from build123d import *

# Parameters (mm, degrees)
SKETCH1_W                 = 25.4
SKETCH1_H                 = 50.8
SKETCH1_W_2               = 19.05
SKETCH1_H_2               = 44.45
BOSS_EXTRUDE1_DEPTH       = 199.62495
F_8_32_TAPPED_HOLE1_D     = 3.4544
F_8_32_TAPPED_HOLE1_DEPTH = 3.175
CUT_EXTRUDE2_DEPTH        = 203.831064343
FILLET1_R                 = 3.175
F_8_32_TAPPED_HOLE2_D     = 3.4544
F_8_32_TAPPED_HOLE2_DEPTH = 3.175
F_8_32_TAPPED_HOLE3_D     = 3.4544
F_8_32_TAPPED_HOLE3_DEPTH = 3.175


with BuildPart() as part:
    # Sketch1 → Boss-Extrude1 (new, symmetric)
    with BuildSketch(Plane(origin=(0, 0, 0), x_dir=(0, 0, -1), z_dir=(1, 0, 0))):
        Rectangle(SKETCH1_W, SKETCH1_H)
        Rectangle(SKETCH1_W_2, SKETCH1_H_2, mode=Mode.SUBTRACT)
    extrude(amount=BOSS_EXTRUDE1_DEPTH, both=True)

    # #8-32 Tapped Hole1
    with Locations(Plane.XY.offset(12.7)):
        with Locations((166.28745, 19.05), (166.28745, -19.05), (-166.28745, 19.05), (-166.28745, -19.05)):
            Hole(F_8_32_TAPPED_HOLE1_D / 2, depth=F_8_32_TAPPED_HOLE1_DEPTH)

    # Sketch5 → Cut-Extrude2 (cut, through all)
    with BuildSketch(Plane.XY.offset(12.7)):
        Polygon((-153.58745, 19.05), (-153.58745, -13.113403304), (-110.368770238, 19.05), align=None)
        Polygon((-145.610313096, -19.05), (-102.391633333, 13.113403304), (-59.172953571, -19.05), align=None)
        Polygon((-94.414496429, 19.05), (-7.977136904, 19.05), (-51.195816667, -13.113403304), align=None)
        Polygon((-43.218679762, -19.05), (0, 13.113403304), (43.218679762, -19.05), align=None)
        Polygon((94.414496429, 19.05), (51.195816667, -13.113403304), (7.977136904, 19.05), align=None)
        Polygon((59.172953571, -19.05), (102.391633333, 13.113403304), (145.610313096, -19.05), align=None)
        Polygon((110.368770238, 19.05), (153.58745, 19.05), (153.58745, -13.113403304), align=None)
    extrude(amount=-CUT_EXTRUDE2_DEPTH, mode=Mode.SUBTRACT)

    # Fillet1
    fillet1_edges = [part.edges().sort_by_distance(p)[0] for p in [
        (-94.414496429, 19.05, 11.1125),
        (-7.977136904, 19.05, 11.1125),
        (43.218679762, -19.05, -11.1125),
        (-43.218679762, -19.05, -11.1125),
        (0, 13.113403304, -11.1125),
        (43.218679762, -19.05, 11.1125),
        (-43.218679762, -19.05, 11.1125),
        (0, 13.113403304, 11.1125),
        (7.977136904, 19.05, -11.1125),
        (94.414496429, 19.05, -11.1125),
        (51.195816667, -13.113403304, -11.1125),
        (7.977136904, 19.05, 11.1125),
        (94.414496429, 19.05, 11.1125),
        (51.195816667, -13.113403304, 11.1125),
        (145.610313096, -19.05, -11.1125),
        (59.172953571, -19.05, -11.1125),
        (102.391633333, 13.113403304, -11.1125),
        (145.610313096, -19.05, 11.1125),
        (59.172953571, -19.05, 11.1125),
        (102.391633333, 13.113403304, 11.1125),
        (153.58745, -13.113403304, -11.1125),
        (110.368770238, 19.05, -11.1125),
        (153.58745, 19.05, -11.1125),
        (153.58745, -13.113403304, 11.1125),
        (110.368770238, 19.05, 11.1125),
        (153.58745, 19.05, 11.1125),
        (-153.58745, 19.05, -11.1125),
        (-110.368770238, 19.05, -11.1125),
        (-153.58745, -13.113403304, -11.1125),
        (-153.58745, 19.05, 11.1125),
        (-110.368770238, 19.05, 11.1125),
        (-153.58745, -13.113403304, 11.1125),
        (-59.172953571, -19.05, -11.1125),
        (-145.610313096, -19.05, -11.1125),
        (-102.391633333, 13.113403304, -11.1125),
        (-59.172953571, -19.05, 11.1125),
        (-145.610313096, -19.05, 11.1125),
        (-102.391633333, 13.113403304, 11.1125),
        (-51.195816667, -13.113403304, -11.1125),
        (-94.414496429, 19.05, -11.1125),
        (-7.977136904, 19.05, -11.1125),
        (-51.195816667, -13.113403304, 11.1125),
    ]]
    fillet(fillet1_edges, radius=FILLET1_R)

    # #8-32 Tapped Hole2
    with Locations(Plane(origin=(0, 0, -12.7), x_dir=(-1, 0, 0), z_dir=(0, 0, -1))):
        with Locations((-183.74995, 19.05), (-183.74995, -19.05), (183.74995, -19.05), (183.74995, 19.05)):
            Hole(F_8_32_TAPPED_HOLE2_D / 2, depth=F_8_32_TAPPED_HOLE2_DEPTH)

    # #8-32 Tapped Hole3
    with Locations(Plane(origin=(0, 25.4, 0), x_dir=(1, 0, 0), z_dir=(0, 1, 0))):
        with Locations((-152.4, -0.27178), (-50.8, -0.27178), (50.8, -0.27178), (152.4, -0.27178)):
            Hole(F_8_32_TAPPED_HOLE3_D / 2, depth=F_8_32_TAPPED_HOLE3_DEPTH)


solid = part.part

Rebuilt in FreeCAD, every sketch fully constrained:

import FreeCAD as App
import Part
import Sketcher
Q = App.Units.Quantity


def edges_at(feature, points):
    """Names of the edges that pass closest to the given points."""
    edges = feature.Shape.Edges
    near = lambda p: min(range(len(edges)), key=lambda i: edges[i].distToShape(Part.Vertex(*p))[0])
    return sorted({f"Edge{near(p) + 1}" for p in points})

doc = App.newDocument("Part")
body = doc.addObject("PartDesign::Body", "Body")

sketch1 = body.newObject("Sketcher::SketchObject", "Sketch")
sketch1.AttachmentSupport = (doc.getObject("YZ_Plane"), [""])
sketch1.MapMode = "FlatFace"
sketch1.addGeometry([
    Part.LineSegment(App.Vector(25, 13, 0), App.Vector(-25, 13, 0)),
    Part.LineSegment(App.Vector(-25, 13, 0), App.Vector(-25, -13, 0)),
    Part.LineSegment(App.Vector(-25, -13, 0), App.Vector(25, -13, 0)),
    Part.LineSegment(App.Vector(25, -13, 0), App.Vector(25, 13, 0)),
    Part.LineSegment(App.Vector(-22, -10, 0), App.Vector(-22, 10, 0)),
    Part.LineSegment(App.Vector(-22, 10, 0), App.Vector(22, 10, 0)),
    Part.LineSegment(App.Vector(22, 10, 0), App.Vector(22, -10, 0)),
    Part.LineSegment(App.Vector(22, -10, 0), App.Vector(-22, -10, 0)),
], False)
sketch1.addConstraint([
    Sketcher.Constraint("Coincident", 0, 2, 1, 1),
    Sketcher.Constraint("Coincident", 1, 2, 2, 1),
    Sketcher.Constraint("Coincident", 2, 2, 3, 1),
    Sketcher.Constraint("Coincident", 3, 2, 0, 1),
    Sketcher.Constraint("Coincident", 4, 2, 5, 1),
    Sketcher.Constraint("Coincident", 5, 2, 6, 1),
    Sketcher.Constraint("Coincident", 6, 2, 7, 1),
    Sketcher.Constraint("Coincident", 7, 2, 4, 1),
    Sketcher.Constraint("Horizontal", 0),
    Sketcher.Constraint("Vertical", 1),
    Sketcher.Constraint("Horizontal", 2),
    Sketcher.Constraint("Vertical", 3),
    Sketcher.Constraint("Vertical", 4),
    Sketcher.Constraint("Horizontal", 5),
    Sketcher.Constraint("Vertical", 6),
    Sketcher.Constraint("Horizontal", 7),
    Sketcher.Constraint("Symmetric", 0, 2, 2, 2, -1, 1),
    Sketcher.Constraint("Symmetric", 4, 2, 6, 2, -1, 1),
    Sketcher.Constraint("DistanceX", 0, 2, 0, 1, Q("2 in")),
    Sketcher.Constraint("DistanceY", 1, 2, 1, 1, Q("1 in")),
    Sketcher.Constraint("DistanceX", 5, 1, 5, 2, Q("1.75 in")),
    Sketcher.Constraint("DistanceY", 4, 1, 4, 2, Q("0.75 in")),
])
pad1 = body.newObject("PartDesign::Pad", "Pad")
pad1.Profile = sketch1
pad1.Length = Q("15.7185 in")
pad1.Midplane = True

sketch2 = body.newObject("Sketcher::SketchObject", "Sketch001")
sketch2.AttachmentSupport = (doc.getObject("XY_Plane"), [""])
sketch2.MapMode = "FlatFace"
sketch2.AttachmentOffset = App.Placement(App.Vector(0, 0, 0.5 * 25.4), App.Rotation())
sketch2.addGeometry([
    Part.Circle(App.Vector(166.3, 19.1, 0), App.Vector(0, 0, 1), 1.7),
    Part.Circle(App.Vector(166.3, -19.1, 0), App.Vector(0, 0, 1), 1.7),
    Part.Circle(App.Vector(-166.3, 19.1, 0), App.Vector(0, 0, 1), 1.7),
    Part.Circle(App.Vector(-166.3, -19.1, 0), App.Vector(0, 0, 1), 1.7),
], False)
sketch2.addConstraint([
    Sketcher.Constraint("Equal", 0, 1),
    Sketcher.Constraint("Equal", 1, 2),
    Sketcher.Constraint("Equal", 2, 3),
    Sketcher.Constraint("Symmetric", 1, 3, 2, 3, -1, 1),
    Sketcher.Constraint("Symmetric", 0, 3, 3, 3, -1, 1),
    Sketcher.Constraint("Symmetric", 0, 3, 2, 3, -2),
    Sketcher.Constraint("Diameter", 0, Q("0.136 in")),
    Sketcher.Constraint("DistanceY", 1, 3, 0, 3, Q("1.5 in")),
    Sketcher.Constraint("DistanceX", 2, 3, 0, 3, Q("13.0935 in")),
])
doc.recompute()
hole = body.newObject("PartDesign::Hole", "Hole")
hole.Profile = sketch2
hole.ThreadType = "None"
hole.Diameter = Q("0.136 in")
hole.DepthType = "Dimension"
hole.Depth = Q("0.125 in")
hole.DrillPoint = "Flat"

sketch3 = body.newObject("Sketcher::SketchObject", "Sketch002")
sketch3.AttachmentSupport = (doc.getObject("XY_Plane"), [""])
sketch3.MapMode = "FlatFace"
sketch3.AttachmentOffset = App.Placement(App.Vector(0, 0, 0.5 * 25.4), App.Rotation())
sketch3.addGeometry([
    Part.LineSegment(App.Vector(-154, 19, 0), App.Vector(-154, -13, 0)),
    Part.LineSegment(App.Vector(-154, -13, 0), App.Vector(-110, 19, 0)),
    Part.LineSegment(App.Vector(-110, 19, 0), App.Vector(-154, 19, 0)),
    Part.LineSegment(App.Vector(-102, 13, 0), App.Vector(-146, -19, 0)),
    Part.LineSegment(App.Vector(-146, -19, 0), App.Vector(-59, -19, 0)),
    Part.LineSegment(App.Vector(-59, -19, 0), App.Vector(-102, 13, 0)),
    Part.LineSegment(App.Vector(-8, 19, 0), App.Vector(-94, 19, 0)),
    Part.LineSegment(App.Vector(-94, 19, 0), App.Vector(-51, -13, 0)),
    Part.LineSegment(App.Vector(-51, -13, 0), App.Vector(-8, 19, 0)),
    Part.LineSegment(App.Vector(0, 13, 0), App.Vector(-43, -19, 0)),
    Part.LineSegment(App.Vector(-43, -19, 0), App.Vector(43, -19, 0)),
    Part.LineSegment(App.Vector(43, -19, 0), App.Vector(0, 13, 0)),
    Part.LineSegment(App.Vector(51, -13, 0), App.Vector(94, 19, 0)),
    Part.LineSegment(App.Vector(94, 19, 0), App.Vector(8, 19, 0)),
    Part.LineSegment(App.Vector(8, 19, 0), App.Vector(51, -13, 0)),
    Part.LineSegment(App.Vector(102, 13, 0), App.Vector(59, -19, 0)),
    Part.LineSegment(App.Vector(59, -19, 0), App.Vector(146, -19, 0)),
    Part.LineSegment(App.Vector(146, -19, 0), App.Vector(102, 13, 0)),
    Part.LineSegment(App.Vector(154, 19, 0), App.Vector(110, 19, 0)),
    Part.LineSegment(App.Vector(110, 19, 0), App.Vector(154, -13, 0)),
    Part.LineSegment(App.Vector(154, -13, 0), App.Vector(154, 19, 0)),
], False)
sketch3.addConstraint([
    Sketcher.Constraint("Coincident", 0, 2, 1, 1),
    Sketcher.Constraint("Coincident", 1, 2, 2, 1),
    Sketcher.Constraint("Coincident", 2, 2, 0, 1),
    Sketcher.Constraint("Coincident", 3, 2, 4, 1),
    Sketcher.Constraint("Coincident", 4, 2, 5, 1),
    Sketcher.Constraint("Coincident", 5, 2, 3, 1),
    Sketcher.Constraint("Coincident", 6, 2, 7, 1),
    Sketcher.Constraint("Coincident", 7, 2, 8, 1),
    Sketcher.Constraint("Coincident", 8, 2, 6, 1),
    Sketcher.Constraint("Coincident", 9, 2, 10, 1),
    Sketcher.Constraint("Coincident", 10, 2, 11, 1),
    Sketcher.Constraint("Coincident", 11, 2, 9, 1),
    Sketcher.Constraint("Coincident", 12, 2, 13, 1),
    Sketcher.Constraint("Coincident", 13, 2, 14, 1),
    Sketcher.Constraint("Coincident", 14, 2, 12, 1),
    Sketcher.Constraint("Coincident", 15, 2, 16, 1),
    Sketcher.Constraint("Coincident", 16, 2, 17, 1),
    Sketcher.Constraint("Coincident", 17, 2, 15, 1),
    Sketcher.Constraint("Coincident", 18, 2, 19, 1),
    Sketcher.Constraint("Coincident", 19, 2, 20, 1),
    Sketcher.Constraint("Coincident", 20, 2, 18, 1),
    Sketcher.Constraint("Vertical", 0),
    Sketcher.Constraint("Horizontal", 2),
    Sketcher.Constraint("Horizontal", 4),
    Sketcher.Constraint("Horizontal", 6),
    Sketcher.Constraint("Horizontal", 10),
    Sketcher.Constraint("Horizontal", 13),
    Sketcher.Constraint("Horizontal", 16),
    Sketcher.Constraint("Horizontal", 18),
    Sketcher.Constraint("Vertical", 20),
    Sketcher.Constraint("Symmetric", 6, 2, 12, 2, -2),
    Sketcher.Constraint("Symmetric", 7, 2, 14, 2, -2),
    Sketcher.Constraint("Symmetric", 4, 2, 15, 2, -2),
    Sketcher.Constraint("Symmetric", 5, 2, 17, 2, -2),
    Sketcher.Constraint("Symmetric", 1, 2, 18, 2, -2),
    Sketcher.Constraint("Symmetric", 0, 2, 19, 2, -2),
    Sketcher.Constraint("PointOnObject", 11, 2, -2),
    Sketcher.Constraint("Parallel", 1, 3),
    Sketcher.Constraint("Parallel", 5, 7),
    Sketcher.Constraint("Parallel", 3, 8),
    Sketcher.Constraint("Parallel", 8, 9),
    Sketcher.Constraint("Parallel", 7, 11),
    Sketcher.Constraint("Parallel", 9, 12),
    Sketcher.Constraint("Parallel", 11, 14),
    Sketcher.Constraint("Parallel", 14, 17),
    Sketcher.Constraint("Horizontal", 2, 2, 6, 2),
    Sketcher.Constraint("Horizontal", 0, 2, 7, 2),
    Sketcher.Constraint("Horizontal", 4, 2, 9, 2),
    Sketcher.Constraint("Horizontal", 5, 2, 11, 2),
    Sketcher.Constraint("Equal", 4, 6),
    Sketcher.Constraint("DistanceY", 3, 2, 2, 2, Q("1.5 in")),
    Sketcher.Constraint("DistanceY", -1, 1, 1, 2, Q("0.75 in")),
    Sketcher.Constraint("DistanceX", 2, 2, 2, 1, Q("43.21868 mm")),
    Sketcher.Constraint("Distance", 1, Q("53.873359 mm")),
    Sketcher.Constraint("DistanceX", 0, 2, -1, 1, Q("153.58745 mm")),
    Sketcher.Constraint("DistanceX", 3, 2, -1, 1, Q("145.610313 mm")),
    Sketcher.Constraint("DistanceX", 6, 2, -1, 1, Q("94.414496 mm")),
])
pocket1 = body.newObject("PartDesign::Pocket", "Pocket")
pocket1.Profile = sketch3
pocket1.Type = "ThroughAll"
doc.recompute()

fillet = body.newObject("PartDesign::Fillet", "Fillet")
fillet.Base = (pocket1, edges_at(pocket1, [
    (-94.414, 19.05, 11.113),
    (-7.977, 19.05, 11.113),
    (43.219, -19.05, -11.113),
    (-43.219, -19.05, -11.113),
    (0, 13.113, -11.113),
    (43.219, -19.05, 11.113),
    (-43.219, -19.05, 11.113),
    (0, 13.113, 11.113),
    (7.977, 19.05, -11.113),
    (94.414, 19.05, -11.113),
    (51.196, -13.113, -11.113),
    (7.977, 19.05, 11.113),
    (94.414, 19.05, 11.113),
    (51.196, -13.113, 11.113),
    (145.61, -19.05, -11.113),
    (59.173, -19.05, -11.113),
    (102.392, 13.113, -11.113),
    (145.61, -19.05, 11.113),
    (59.173, -19.05, 11.113),
    (102.392, 13.113, 11.113),
    (153.587, -13.113, -11.113),
    (110.369, 19.05, -11.113),
    (153.587, 19.05, -11.113),
    (153.587, -13.113, 11.113),
    (110.369, 19.05, 11.113),
    (153.587, 19.05, 11.113),
    (-153.587, 19.05, -11.113),
    (-110.369, 19.05, -11.113),
    (-153.587, -13.113, -11.113),
    (-153.587, 19.05, 11.113),
    (-110.369, 19.05, 11.113),
    (-153.587, -13.113, 11.113),
    (-59.173, -19.05, -11.113),
    (-145.61, -19.05, -11.113),
    (-102.392, 13.113, -11.113),
    (-59.173, -19.05, 11.113),
    (-145.61, -19.05, 11.113),
    (-102.392, 13.113, 11.113),
    (-51.196, -13.113, -11.113),
    (-94.414, 19.05, -11.113),
    (-7.977, 19.05, -11.113),
    (-51.196, -13.113, 11.113),
]))
fillet.Radius = Q("0.125 in")

sketch4 = body.newObject("Sketcher::SketchObject", "Sketch003")
sketch4.AttachmentSupport = (doc.getObject("XY_Plane"), [""])
sketch4.MapMode = "FlatFace"
sketch4.AttachmentOffset = App.Placement(App.Vector(0, 0, -0.5 * 25.4), App.Rotation())
sketch4.addGeometry([
    Part.Circle(App.Vector(183.7, 19.1, 0), App.Vector(0, 0, 1), 1.7),
    Part.Circle(App.Vector(183.7, -19.1, 0), App.Vector(0, 0, 1), 1.7),
    Part.Circle(App.Vector(-183.7, -19.1, 0), App.Vector(0, 0, 1), 1.7),
    Part.Circle(App.Vector(-183.7, 19.1, 0), App.Vector(0, 0, 1), 1.7),
], False)
sketch4.addConstraint([
    Sketcher.Constraint("Equal", 0, 1),
    Sketcher.Constraint("Equal", 1, 2),
    Sketcher.Constraint("Equal", 2, 3),
    Sketcher.Constraint("Symmetric", 0, 3, 2, 3, -1, 1),
    Sketcher.Constraint("Symmetric", 1, 3, 3, 3, -1, 1),
    Sketcher.Constraint("Symmetric", 1, 3, 2, 3, -2),
    Sketcher.Constraint("Diameter", 0, Q("0.136 in")),
    Sketcher.Constraint("DistanceY", 1, 3, 0, 3, Q("1.5 in")),
    Sketcher.Constraint("DistanceX", 2, 3, 1, 3, Q("14.4685 in")),
])
doc.recompute()
hole2 = body.newObject("PartDesign::Hole", "Hole001")
hole2.Profile = sketch4
hole2.ThreadType = "None"
hole2.Diameter = Q("0.136 in")
hole2.DepthType = "Dimension"
hole2.Depth = Q("0.125 in")
hole2.DrillPoint = "Flat"
hole2.Reversed = True

sketch5 = body.newObject("Sketcher::SketchObject", "Sketch004")
sketch5.AttachmentSupport = (doc.getObject("XZ_Plane"), [""])
sketch5.MapMode = "FlatFace"
sketch5.AttachmentOffset = App.Placement(App.Vector(0, 0, -1 * 25.4), App.Rotation())
sketch5.addGeometry([
    Part.Circle(App.Vector(-152.4, 0.3, 0), App.Vector(0, 0, 1), 1.7),
    Part.Circle(App.Vector(-50.8, 0.3, 0), App.Vector(0, 0, 1), 1.7),
    Part.Circle(App.Vector(50.8, 0.3, 0), App.Vector(0, 0, 1), 1.7),
    Part.Circle(App.Vector(152.4, 0.3, 0), App.Vector(0, 0, 1), 1.7),
], False)
sketch5.addConstraint([
    Sketcher.Constraint("Equal", 0, 1),
    Sketcher.Constraint("Equal", 1, 2),
    Sketcher.Constraint("Equal", 2, 3),
    Sketcher.Constraint("Symmetric", 1, 3, 2, 3, -2),
    Sketcher.Constraint("Symmetric", 0, 3, 3, 3, -2),
    Sketcher.Constraint("Horizontal", 0, 3, 1, 3),
    Sketcher.Constraint("Diameter", 0, Q("0.136 in")),
    Sketcher.Constraint("DistanceX", 0, 3, -1, 1, Q("6 in")),
    Sketcher.Constraint("DistanceX", 1, 3, -1, 1, Q("2 in")),
    Sketcher.Constraint("DistanceY", -1, 1, 0, 3, Q("0.0107 in")),
])
doc.recompute()
hole3 = body.newObject("PartDesign::Hole", "Hole002")
hole3.Profile = sketch5
hole3.ThreadType = "None"
hole3.Diameter = Q("0.136 in")
hole3.DepthType = "Dimension"
hole3.Depth = Q("0.125 in")
hole3.DrillPoint = "Flat"
hole3.Reversed = True

doc.recompute()
